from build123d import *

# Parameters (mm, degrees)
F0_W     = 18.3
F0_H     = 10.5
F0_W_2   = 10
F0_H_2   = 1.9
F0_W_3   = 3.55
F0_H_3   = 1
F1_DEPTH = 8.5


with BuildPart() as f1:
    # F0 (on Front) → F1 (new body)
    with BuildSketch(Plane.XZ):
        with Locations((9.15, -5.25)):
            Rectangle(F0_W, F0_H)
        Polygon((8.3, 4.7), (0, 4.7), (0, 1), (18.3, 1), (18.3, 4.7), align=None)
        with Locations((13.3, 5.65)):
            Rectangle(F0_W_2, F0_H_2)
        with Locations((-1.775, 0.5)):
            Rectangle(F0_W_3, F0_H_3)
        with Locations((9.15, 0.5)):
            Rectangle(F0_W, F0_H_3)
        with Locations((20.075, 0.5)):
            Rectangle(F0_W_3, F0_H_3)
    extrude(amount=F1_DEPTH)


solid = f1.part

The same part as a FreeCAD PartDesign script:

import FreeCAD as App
import Part
import Sketcher

V = App.Vector
Q = App.Units.Quantity

doc = App.newDocument("Part")
body = doc.addObject("PartDesign::Body", "Body")

# Sketch on XZ plane
sketch1 = doc.addObject("Sketcher::SketchObject", "Sketch")
body.addObject(sketch1)
sketch1.AttachmentSupport = (doc.XZ_Plane, [""])
sketch1.MapMode = "FlatFace"
sketch1.addGeometry(Part.LineSegment(V(0, 0, 0), V(0, -10.5, 0)), False)
sketch1.addGeometry(Part.LineSegment(V(0, -10.5, 0), V(18.3, -10.5, 0)), False)
sketch1.addGeometry(Part.LineSegment(V(18.3, -10.5, 0), V(18.3, 0, 0)), False)
sketch1.addGeometry(Part.LineSegment(V(18.3, 0, 0), V(21.85, 0, 0)), False)
sketch1.addGeometry(Part.LineSegment(V(21.85, 0, 0), V(21.85, 1, 0)), False)
sketch1.addGeometry(Part.LineSegment(V(21.85, 1, 0), V(18.3, 1, 0)), False)
sketch1.addGeometry(Part.LineSegment(V(18.3, 1, 0), V(18.3, 6.6, 0)), False)
sketch1.addGeometry(Part.LineSegment(V(18.3, 6.6, 0), V(8.3, 6.6, 0)), False)
sketch1.addGeometry(Part.LineSegment(V(8.3, 6.6, 0), V(8.3, 4.7, 0)), False)
sketch1.addGeometry(Part.LineSegment(V(8.3, 4.7, 0), V(0, 4.7, 0)), False)
sketch1.addGeometry(Part.LineSegment(V(0, 4.7, 0), V(0, 1, 0)), False)
sketch1.addGeometry(Part.LineSegment(V(0, 1, 0), V(-3.55, 1, 0)), False)
sketch1.addGeometry(Part.LineSegment(V(-3.55, 1, 0), V(-3.55, 0, 0)), False)
sketch1.addGeometry(Part.LineSegment(V(-3.55, 0, 0), V(0, 0, 0)), False)
sketch1.addConstraint(Sketcher.Constraint("Coincident", 0, 2, 1, 1))
sketch1.addConstraint(Sketcher.Constraint("Coincident", 1, 2, 2, 1))
sketch1.addConstraint(Sketcher.Constraint("Coincident", 2, 2, 3, 1))
sketch1.addConstraint(Sketcher.Constraint("Coincident", 3, 2, 4, 1))
sketch1.addConstraint(Sketcher.Constraint("Coincident", 4, 2, 5, 1))
sketch1.addConstraint(Sketcher.Constraint("Coincident", 5, 2, 6, 1))
sketch1.addConstraint(Sketcher.Constraint("Coincident", 6, 2, 7, 1))
sketch1.addConstraint(Sketcher.Constraint("Coincident", 7, 2, 8, 1))
sketch1.addConstraint(Sketcher.Constraint("Coincident", 8, 2, 9, 1))
sketch1.addConstraint(Sketcher.Constraint("Coincident", 9, 2, 10, 1))
sketch1.addConstraint(Sketcher.Constraint("Coincident", 10, 2, 11, 1))
sketch1.addConstraint(Sketcher.Constraint("Coincident", 11, 2, 12, 1))
sketch1.addConstraint(Sketcher.Constraint("Coincident", 12, 2, 13, 1))
sketch1.addConstraint(Sketcher.Constraint("Coincident", 13, 2, 0, 1))
sketch1.addConstraint(Sketcher.Constraint("Vertical", 0))
sketch1.addConstraint(Sketcher.Constraint("Horizontal", 1))
sketch1.addConstraint(Sketcher.Constraint("Vertical", 2))
sketch1.addConstraint(Sketcher.Constraint("Horizontal", 3))
sketch1.addConstraint(Sketcher.Constraint("Vertical", 4))
sketch1.addConstraint(Sketcher.Constraint("Horizontal", 5))
sketch1.addConstraint(Sketcher.Constraint("Vertical", 6))
sketch1.addConstraint(Sketcher.Constraint("Horizontal", 7))
sketch1.addConstraint(Sketcher.Constraint("Vertical", 8))
sketch1.addConstraint(Sketcher.Constraint("Horizontal", 9))
sketch1.addConstraint(Sketcher.Constraint("Vertical", 10))
sketch1.addConstraint(Sketcher.Constraint("Horizontal", 11))
sketch1.addConstraint(Sketcher.Constraint("Vertical", 12))
sketch1.addConstraint(Sketcher.Constraint("Horizontal", 13))
sketch1.addConstraint(Sketcher.Constraint("Coincident", 13, 2, -1, 1))
sketch1.addConstraint(Sketcher.Constraint("PointOnObject", 2, 2, -1))
sketch1.addConstraint(Sketcher.Constraint("PointOnObject", 9, 2, -2))
sketch1.addConstraint(Sketcher.Constraint("Horizontal", 5, 2, 10, 2))
sketch1.addConstraint(Sketcher.Constraint("Vertical", 2, 2, 5, 2))
sketch1.addConstraint(Sketcher.Constraint("Equal", 5, 11))
sketch1.addConstraint(Sketcher.Constraint("DistanceX", 7, 2, 7, 1, Q("10 mm")))
sketch1.addConstraint(Sketcher.Constraint("DistanceY", 4, 1, 4, 2, Q("1 mm")))
sketch1.addConstraint(Sketcher.Constraint("DistanceX", 1, 1, 1, 2, Q("18.3 mm")))
sketch1.addConstraint(Sketcher.Constraint("DistanceY", 0, 2, 0, 1, Q("10.5 mm")))
sketch1.addConstraint(Sketcher.Constraint("DistanceY", 6, 1, 6, 2, Q("5.6 mm")))
sketch1.addConstraint(Sketcher.Constraint("DistanceY", 8, 2, 8, 1, Q("1.9 mm")))
sketch1.addConstraint(Sketcher.Constraint("DistanceX", 3, 1, 3, 2, Q("3.55 mm")))
pad1 = doc.addObject("PartDesign::Pad", "Pad")
body.addObject(pad1)
pad1.Profile = sketch1
pad1.Length = 8.5

doc.recompute()
